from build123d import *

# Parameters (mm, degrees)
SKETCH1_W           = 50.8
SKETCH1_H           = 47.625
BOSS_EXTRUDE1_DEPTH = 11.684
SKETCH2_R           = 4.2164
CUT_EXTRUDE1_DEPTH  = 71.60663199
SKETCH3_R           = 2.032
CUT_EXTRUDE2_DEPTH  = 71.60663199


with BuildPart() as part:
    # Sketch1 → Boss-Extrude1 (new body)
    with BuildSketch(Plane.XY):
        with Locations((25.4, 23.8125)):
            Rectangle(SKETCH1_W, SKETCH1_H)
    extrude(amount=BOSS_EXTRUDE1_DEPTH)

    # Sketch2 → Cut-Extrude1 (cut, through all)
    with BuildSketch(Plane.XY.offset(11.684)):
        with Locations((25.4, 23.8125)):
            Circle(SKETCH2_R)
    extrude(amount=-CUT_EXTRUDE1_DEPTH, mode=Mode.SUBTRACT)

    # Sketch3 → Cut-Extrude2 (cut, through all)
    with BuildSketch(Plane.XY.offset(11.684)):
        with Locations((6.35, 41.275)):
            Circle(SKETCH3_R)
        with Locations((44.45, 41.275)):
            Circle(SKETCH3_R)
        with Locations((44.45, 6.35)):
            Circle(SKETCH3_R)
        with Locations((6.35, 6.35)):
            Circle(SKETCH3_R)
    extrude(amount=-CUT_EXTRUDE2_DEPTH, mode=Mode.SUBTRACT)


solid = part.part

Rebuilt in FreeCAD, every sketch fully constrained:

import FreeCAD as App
import Part
import Sketcher
Q = App.Units.Quantity


def add_polygon(sketch, points):
    """Adds a closed chain of lines whose ends are joined by coincident constraints."""
    first, n = sketch.GeometryCount, len(points)
    for a, b in zip(points, points[1:] + points[:1]):
        sketch.addGeometry(Part.LineSegment(App.Vector(*a, 0), App.Vector(*b, 0)), False)
    for i in range(n):
        sketch.addConstraint(Sketcher.Constraint("Coincident", first + i, 2, first + (i + 1) % n, 1))

doc = App.newDocument("Part")
body = doc.addObject("PartDesign::Body", "Body")

# Sketch on XY plane
sketch1 = body.newObject("Sketcher::SketchObject", "Sketch")
sketch1.AttachmentSupport = (doc.getObject("XY_Plane"), [""])
sketch1.MapMode = "FlatFace"
add_polygon(sketch1, [(0, 48), (0, 0), (51, 0), (51, 48)])  # lines 0-3
sketch1.addConstraint(Sketcher.Constraint("Vertical", 0))
sketch1.addConstraint(Sketcher.Constraint("Horizontal", 1))
sketch1.addConstraint(Sketcher.Constraint("Vertical", 2))
sketch1.addConstraint(Sketcher.Constraint("Horizontal", 3))
sketch1.addConstraint(Sketcher.Constraint("Coincident", 0, 2, -1, 1))
sketch1.addConstraint(Sketcher.Constraint("DistanceX", 1, 1, 1, 2, Q("2 in")))
sketch1.addConstraint(Sketcher.Constraint("DistanceY", 0, 2, 0, 1, Q("1.875 in")))
pad1 = body.newObject("PartDesign::Pad", "Pad")
pad1.Profile = sketch1
pad1.Length = Q("0.46 in")

# Sketch on XY plane
sketch2 = body.newObject("Sketcher::SketchObject", "Sketch001")
sketch2.AttachmentSupport = (doc.getObject("XY_Plane"), [""])
sketch2.MapMode = "FlatFace"
sketch2.AttachmentOffset = App.Placement(App.Vector(0, 0, 0.46 * 25.4), App.Rotation())
sketch2.addGeometry(Part.Circle(App.Vector(25.4, 23.8, 0), App.Vector(0, 0, 1), 4.2), False)
sketch2.addConstraint(Sketcher.Constraint("Diameter", 0, Q("0.332 in")))
sketch2.addConstraint(Sketcher.Constraint("DistanceX", -1, 1, 0, 3, Q("1 in")))
sketch2.addConstraint(Sketcher.Constraint("DistanceY", -1, 1, 0, 3, Q("0.9375 in")))
pocket1 = body.newObject("PartDesign::Pocket", "Pocket")
pocket1.Profile = sketch2
pocket1.Type = "ThroughAll"

# Sketch on XY plane
sketch3 = body.newObject("Sketcher::SketchObject", "Sketch002")
sketch3.AttachmentSupport = (doc.getObject("XY_Plane"), [""])
sketch3.MapMode = "FlatFace"
sketch3.AttachmentOffset = App.Placement(App.Vector(0, 0, 0.46 * 25.4), App.Rotation())
sketch3.addGeometry(Part.Circle(App.Vector(6.3, 41.3, 0), App.Vector(0, 0, 1), 2), False)
sketch3.addGeometry(Part.Circle(App.Vector(44.5, 41.3, 0), App.Vector(0, 0, 1), 2), False)
sketch3.addGeometry(Part.Circle(App.Vector(44.5, 6.3, 0), App.Vector(0, 0, 1), 2), False)
sketch3.addGeometry(Part.Circle(App.Vector(6.3, 6.3, 0), App.Vector(0, 0, 1), 2), False)
sketch3.addConstraint(Sketcher.Constraint("Equal", 0, 1))
sketch3.addConstraint(Sketcher.Constraint("Equal", 1, 2))
sketch3.addConstraint(Sketcher.Constraint("Equal", 2, 3))
sketch3.addConstraint(Sketcher.Constraint("Horizontal", 0, 3, 1, 3))
sketch3.addConstraint(Sketcher.Constraint("Horizontal", 2, 3, 3, 3))
sketch3.addConstraint(Sketcher.Constraint("Vertical", 1, 3, 2, 3))
sketch3.addConstraint(Sketcher.Constraint("Vertical", 0, 3, 3, 3))
sketch3.addConstraint(Sketcher.Constraint("Diameter", 0, Q("0.16 in")))
sketch3.addConstraint(Sketcher.Constraint("DistanceX", 0, 3, 1, 3, Q("1.5 in")))
sketch3.addConstraint(Sketcher.Constraint("DistanceX", -1, 1, 0, 3, Q("0.25 in")))
sketch3.addConstraint(Sketcher.Constraint("DistanceY", -1, 1, 2, 3, Q("0.25 in")))
sketch3.addConstraint(Sketcher.Constraint("DistanceY", -1, 1, 0, 3, Q("1.625 in")))
pocket2 = body.newObject("PartDesign::Pocket", "Pocket001")
pocket2.Profile = sketch3
pocket2.Type = "ThroughAll"

doc.recompute()
